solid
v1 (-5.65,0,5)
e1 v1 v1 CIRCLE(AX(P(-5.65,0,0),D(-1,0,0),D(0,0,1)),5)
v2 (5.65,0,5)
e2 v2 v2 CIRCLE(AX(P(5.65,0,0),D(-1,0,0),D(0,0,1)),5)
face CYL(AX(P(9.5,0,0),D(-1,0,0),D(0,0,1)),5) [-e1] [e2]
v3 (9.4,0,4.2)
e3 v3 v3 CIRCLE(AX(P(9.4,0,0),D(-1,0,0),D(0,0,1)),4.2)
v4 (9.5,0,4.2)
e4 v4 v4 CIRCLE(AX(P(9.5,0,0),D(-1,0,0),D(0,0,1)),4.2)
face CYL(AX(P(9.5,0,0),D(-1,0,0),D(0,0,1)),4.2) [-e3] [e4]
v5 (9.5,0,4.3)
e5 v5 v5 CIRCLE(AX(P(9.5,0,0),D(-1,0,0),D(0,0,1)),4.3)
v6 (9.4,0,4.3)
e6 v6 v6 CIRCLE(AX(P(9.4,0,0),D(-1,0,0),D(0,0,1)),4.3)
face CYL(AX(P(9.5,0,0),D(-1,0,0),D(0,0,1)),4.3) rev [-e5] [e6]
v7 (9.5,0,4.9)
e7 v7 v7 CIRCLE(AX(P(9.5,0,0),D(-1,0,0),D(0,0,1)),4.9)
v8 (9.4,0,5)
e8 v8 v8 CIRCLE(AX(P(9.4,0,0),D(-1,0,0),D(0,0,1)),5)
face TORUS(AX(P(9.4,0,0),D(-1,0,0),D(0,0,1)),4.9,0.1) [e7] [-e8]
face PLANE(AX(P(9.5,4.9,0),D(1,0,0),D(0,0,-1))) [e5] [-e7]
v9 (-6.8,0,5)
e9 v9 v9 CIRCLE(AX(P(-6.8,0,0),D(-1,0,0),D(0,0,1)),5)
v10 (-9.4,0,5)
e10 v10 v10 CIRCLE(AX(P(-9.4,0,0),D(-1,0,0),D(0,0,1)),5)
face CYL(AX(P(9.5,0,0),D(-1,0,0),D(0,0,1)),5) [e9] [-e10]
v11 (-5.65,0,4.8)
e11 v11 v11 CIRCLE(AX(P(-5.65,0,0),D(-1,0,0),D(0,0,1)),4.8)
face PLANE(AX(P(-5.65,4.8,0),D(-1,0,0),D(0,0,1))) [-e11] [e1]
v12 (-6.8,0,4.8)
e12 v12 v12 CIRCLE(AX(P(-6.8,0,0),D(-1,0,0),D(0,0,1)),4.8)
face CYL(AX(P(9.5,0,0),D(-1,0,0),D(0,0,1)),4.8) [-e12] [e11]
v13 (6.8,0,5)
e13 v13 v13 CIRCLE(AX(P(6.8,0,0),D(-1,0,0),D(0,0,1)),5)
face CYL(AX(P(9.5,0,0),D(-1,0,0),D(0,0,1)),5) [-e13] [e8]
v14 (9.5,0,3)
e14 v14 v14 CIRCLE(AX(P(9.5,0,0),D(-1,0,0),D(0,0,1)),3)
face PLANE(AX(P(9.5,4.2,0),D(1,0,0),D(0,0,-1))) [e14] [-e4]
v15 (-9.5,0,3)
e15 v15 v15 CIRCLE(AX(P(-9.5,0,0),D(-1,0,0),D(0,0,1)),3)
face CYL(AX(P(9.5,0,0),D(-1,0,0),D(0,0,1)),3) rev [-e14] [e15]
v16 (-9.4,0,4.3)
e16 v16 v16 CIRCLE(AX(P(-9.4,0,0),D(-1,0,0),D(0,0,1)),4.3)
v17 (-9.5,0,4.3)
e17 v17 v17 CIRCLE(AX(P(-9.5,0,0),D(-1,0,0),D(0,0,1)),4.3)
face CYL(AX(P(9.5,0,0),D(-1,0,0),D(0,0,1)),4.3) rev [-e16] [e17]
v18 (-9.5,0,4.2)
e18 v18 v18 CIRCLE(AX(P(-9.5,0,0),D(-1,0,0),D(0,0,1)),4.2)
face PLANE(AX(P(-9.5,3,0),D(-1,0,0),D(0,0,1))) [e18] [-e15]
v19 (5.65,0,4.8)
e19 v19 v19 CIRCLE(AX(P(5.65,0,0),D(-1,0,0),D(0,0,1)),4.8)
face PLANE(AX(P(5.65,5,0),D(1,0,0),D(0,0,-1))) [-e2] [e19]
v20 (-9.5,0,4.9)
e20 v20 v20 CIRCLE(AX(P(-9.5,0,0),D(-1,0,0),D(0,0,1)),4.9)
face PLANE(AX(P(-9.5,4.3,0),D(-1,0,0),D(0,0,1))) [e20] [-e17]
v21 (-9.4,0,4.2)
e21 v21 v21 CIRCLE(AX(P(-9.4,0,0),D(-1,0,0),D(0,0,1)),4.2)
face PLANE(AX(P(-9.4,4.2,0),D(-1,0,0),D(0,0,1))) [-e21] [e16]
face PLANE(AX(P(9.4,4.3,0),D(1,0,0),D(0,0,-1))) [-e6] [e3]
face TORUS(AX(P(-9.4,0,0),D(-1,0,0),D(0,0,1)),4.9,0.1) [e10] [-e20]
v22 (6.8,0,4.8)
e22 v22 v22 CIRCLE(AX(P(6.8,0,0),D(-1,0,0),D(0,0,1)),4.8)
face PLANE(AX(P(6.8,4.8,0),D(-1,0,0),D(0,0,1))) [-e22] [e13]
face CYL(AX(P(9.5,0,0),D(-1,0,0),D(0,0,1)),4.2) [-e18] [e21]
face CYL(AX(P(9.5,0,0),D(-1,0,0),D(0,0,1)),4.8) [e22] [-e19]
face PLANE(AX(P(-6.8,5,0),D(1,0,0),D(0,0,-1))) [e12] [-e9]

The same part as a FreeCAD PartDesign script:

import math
import FreeCAD as App
import Part
import Sketcher
from FreeCAD import Vector

doc = App.newDocument("Part")
params = doc.addObject("Spreadsheet::Sheet", "Params")
for row, (alias, value) in enumerate([
    ("sketch1_radius", "0.1 mm"),
    ("sketch1_width", "19 mm"),
    ("sketch1_width2", "2.6 mm"),
    ("sketch1_width3", "11.3 mm"),
    ("sketch1_height", "1.2 mm"),
    ("revolution_angle", "360 deg"),
], start=1):
    params.set(f"A{row}", alias)
    params.set(f"B{row}", "=" + value)
    params.setAlias(f"B{row}", alias)

body = doc.addObject("PartDesign::Body", "Body")

# Sketch on XY plane
sketch1 = body.newObject("Sketcher::SketchObject", "Sketch")
sketch1.AttachmentSupport = (doc.getObject("XY_Plane"), [""])
sketch1.MapMode = "FlatFace"
sketch1.addGeometry(Part.LineSegment(Vector(9.4, 4.2, 0), Vector(9.5, 4.2, 0)), False)
sketch1.addGeometry(Part.LineSegment(Vector(9.5, 4.2, 0), Vector(9.5, 3, 0)), False)
sketch1.addGeometry(Part.LineSegment(Vector(9.5, 3, 0), Vector(-9.5, 3, 0)), False)
sketch1.addGeometry(Part.LineSegment(Vector(-9.5, 3, 0), Vector(-9.5, 4.2, 0)), False)
sketch1.addGeometry(Part.LineSegment(Vector(-9.5, 4.2, 0), Vector(-9.4, 4.2, 0)), False)
sketch1.addGeometry(Part.LineSegment(Vector(-9.4, 4.2, 0), Vector(-9.4, 4.3, 0)), False)
sketch1.addGeometry(Part.LineSegment(Vector(-9.4, 4.3, 0), Vector(-9.5, 4.3, 0)), False)
sketch1.addGeometry(Part.LineSegment(Vector(-9.5, 4.3, 0), Vector(-9.5, 4.9, 0)), False)
sketch1.addGeometry(Part.ArcOfCircle(Part.Circle(Vector(-9.4, 4.9, 0), Vector(0, 0, 1), 0.1), math.radians(90), math.radians(180)), False)
sketch1.addGeometry(Part.LineSegment(Vector(-9.4, 5, 0), Vector(-6.8, 5, 0)), False)
sketch1.addGeometry(Part.LineSegment(Vector(-6.8, 5, 0), Vector(-6.8, 4.8, 0)), False)
sketch1.addGeometry(Part.LineSegment(Vector(-6.8, 4.8, 0), Vector(-5.65, 4.8, 0)), False)
sketch1.addGeometry(Part.LineSegment(Vector(-5.65, 4.8, 0), Vector(-5.65, 5, 0)), False)
sketch1.addGeometry(Part.LineSegment(Vector(-5.65, 5, 0), Vector(5.65, 5, 0)), False)
sketch1.addGeometry(Part.LineSegment(Vector(5.65, 5, 0), Vector(5.65, 4.8, 0)), False)
sketch1.addGeometry(Part.LineSegment(Vector(5.65, 4.8, 0), Vector(6.8, 4.8, 0)), False)
sketch1.addGeometry(Part.LineSegment(Vector(6.8, 4.8, 0), Vector(6.8, 5, 0)), False)
sketch1.addGeometry(Part.LineSegment(Vector(6.8, 5, 0), Vector(9.4, 5, 0)), False)
sketch1.addGeometry(Part.ArcOfCircle(Part.Circle(Vector(9.4, 4.9, 0), Vector(0, 0, 1), 0.1), math.radians(0), math.radians(90)), False)
sketch1.addGeometry(Part.LineSegment(Vector(9.5, 4.9, 0), Vector(9.5, 4.3, 0)), False)
sketch1.addGeometry(Part.LineSegment(Vector(9.5, 4.3, 0), Vector(9.4, 4.3, 0)), False)
sketch1.addGeometry(Part.LineSegment(Vector(9.4, 4.3, 0), Vector(9.4, 4.2, 0)), False)
sketch1.addConstraint(Sketcher.Constraint("Coincident", 0, 2, 1, 1))
sketch1.addConstraint(Sketcher.Constraint("Coincident", 1, 2, 2, 1))
sketch1.addConstraint(Sketcher.Constraint("Coincident", 2, 2, 3, 1))
sketch1.addConstraint(Sketcher.Constraint("Coincident", 3, 2, 4, 1))
sketch1.addConstraint(Sketcher.Constraint("Coincident", 4, 2, 5, 1))
sketch1.addConstraint(Sketcher.Constraint("Coincident", 5, 2, 6, 1))
sketch1.addConstraint(Sketcher.Constraint("Coincident", 6, 2, 7, 1))
sketch1.addConstraint(Sketcher.Constraint("Tangent", 7, 2, 8, 2))
sketch1.addConstraint(Sketcher.Constraint("Tangent", 8, 1, 9, 1))
sketch1.addConstraint(Sketcher.Constraint("Coincident", 9, 2, 10, 1))
sketch1.addConstraint(Sketcher.Constraint("Coincident", 10, 2, 11, 1))
sketch1.addConstraint(Sketcher.Constraint("Coincident", 11, 2, 12, 1))
sketch1.addConstraint(Sketcher.Constraint("Coincident", 12, 2, 13, 1))
sketch1.addConstraint(Sketcher.Constraint("Coincident", 13, 2, 14, 1))
sketch1.addConstraint(Sketcher.Constraint("Coincident", 14, 2, 15, 1))
sketch1.addConstraint(Sketcher.Constraint("Coincident", 15, 2, 16, 1))
sketch1.addConstraint(Sketcher.Constraint("Coincident", 16, 2, 17, 1))
sketch1.addConstraint(Sketcher.Constraint("Tangent", 17, 2, 18, 2))
sketch1.addConstraint(Sketcher.Constraint("Tangent", 18, 1, 19, 1))
sketch1.addConstraint(Sketcher.Constraint("Coincident", 19, 2, 20, 1))
sketch1.addConstraint(Sketcher.Constraint("Coincident", 20, 2, 21, 1))
sketch1.addConstraint(Sketcher.Constraint("Coincident", 21, 2, 0, 1))
sketch1.addConstraint(Sketcher.Constraint("Horizontal", 0))
sketch1.addConstraint(Sketcher.Constraint("Vertical", 1))
sketch1.addConstraint(Sketcher.Constraint("Horizontal", 2))
sketch1.addConstraint(Sketcher.Constraint("Vertical", 3))
sketch1.addConstraint(Sketcher.Constraint("Horizontal", 4))
sketch1.addConstraint(Sketcher.Constraint("Vertical", 5))
sketch1.addConstraint(Sketcher.Constraint("Horizontal", 6))
sketch1.addConstraint(Sketcher.Constraint("Vertical", 7))
sketch1.addConstraint(Sketcher.Constraint("Horizontal", 9))
sketch1.addConstraint(Sketcher.Constraint("Vertical", 10))
sketch1.addConstraint(Sketcher.Constraint("Horizontal", 11))
sketch1.addConstraint(Sketcher.Constraint("Vertical", 12))
sketch1.addConstraint(Sketcher.Constraint("Horizontal", 13))
sketch1.addConstraint(Sketcher.Constraint("Vertical", 14))
sketch1.addConstraint(Sketcher.Constraint("Horizontal", 15))
sketch1.addConstraint(Sketcher.Constraint("Vertical", 16))
sketch1.addConstraint(Sketcher.Constraint("Horizontal", 17))
sketch1.addConstraint(Sketcher.Constraint("Vertical", 19))
sketch1.addConstraint(Sketcher.Constraint("Horizontal", 20))
sketch1.addConstraint(Sketcher.Constraint("Vertical", 21))
sketch1.addConstraint(Sketcher.Constraint("Equal", 8, 18))
sketch1.addConstraint(Sketcher.Constraint("Symmetric", 8, 3, 18, 3, -2))
sketch1.addConstraint(Sketcher.Constraint("Symmetric", 0, 2, 3, 2, -2))
sketch1.addConstraint(Sketcher.Constraint("Symmetric", 11, 2, 14, 2, -2))
sketch1.addConstraint(Sketcher.Constraint("Symmetric", 5, 2, 20, 2, -2))
sketch1.addConstraint(Sketcher.Constraint("Horizontal", 9, 2, 12, 2))
sketch1.addConstraint(Sketcher.Constraint("Vertical", 8, 3, 4, 2))
sketch1.addConstraint(Sketcher.Constraint("Vertical", 3, 2, 6, 2))
sketch1.addConstraint(Sketcher.Constraint("Equal", 11, 15))
sketch1.addConstraint(Sketcher.Constraint("Equal", 20, 5))
sketch1.addConstraint(Sketcher.Constraint("Radius", 8, 0.1))
sketch1.addConstraint(Sketcher.Constraint("DistanceX", 2, 2, 2, 1, 19.0))
sketch1.addConstraint(Sketcher.Constraint("DistanceX", 9, 1, 9, 2, 2.6))
sketch1.addConstraint(Sketcher.Constraint("DistanceX", 13, 1, 13, 2, 11.3))
sketch1.addConstraint(Sketcher.Constraint("DistanceY", 1, 2, 1, 1, 1.2))
sketch1.addConstraint(Sketcher.Constraint("DistanceY", 7, 1, 7, 2, 0.6))
sketch1.addConstraint(Sketcher.Constraint("DistanceY", 10, 2, 10, 1, 0.2))
sketch1.addConstraint(Sketcher.Constraint("DistanceY", -1, 1, 1, 2, 3.0))
sketch1.setExpression("Constraints[52]", "Params.sketch1_radius")
sketch1.setExpression("Constraints[53]", "Params.sketch1_width")
sketch1.setExpression("Constraints[54]", "Params.sketch1_width2")
sketch1.setExpression("Constraints[55]", "Params.sketch1_width3")
sketch1.setExpression("Constraints[56]", "Params.sketch1_height")
revolution = body.newObject("PartDesign::Revolution", "Revolution")
revolution.Profile = sketch1
revolution.ReferenceAxis = (sketch1, ["H_Axis"])
revolution.setExpression("Angle", "Params.revolution_angle")

doc.recompute()
